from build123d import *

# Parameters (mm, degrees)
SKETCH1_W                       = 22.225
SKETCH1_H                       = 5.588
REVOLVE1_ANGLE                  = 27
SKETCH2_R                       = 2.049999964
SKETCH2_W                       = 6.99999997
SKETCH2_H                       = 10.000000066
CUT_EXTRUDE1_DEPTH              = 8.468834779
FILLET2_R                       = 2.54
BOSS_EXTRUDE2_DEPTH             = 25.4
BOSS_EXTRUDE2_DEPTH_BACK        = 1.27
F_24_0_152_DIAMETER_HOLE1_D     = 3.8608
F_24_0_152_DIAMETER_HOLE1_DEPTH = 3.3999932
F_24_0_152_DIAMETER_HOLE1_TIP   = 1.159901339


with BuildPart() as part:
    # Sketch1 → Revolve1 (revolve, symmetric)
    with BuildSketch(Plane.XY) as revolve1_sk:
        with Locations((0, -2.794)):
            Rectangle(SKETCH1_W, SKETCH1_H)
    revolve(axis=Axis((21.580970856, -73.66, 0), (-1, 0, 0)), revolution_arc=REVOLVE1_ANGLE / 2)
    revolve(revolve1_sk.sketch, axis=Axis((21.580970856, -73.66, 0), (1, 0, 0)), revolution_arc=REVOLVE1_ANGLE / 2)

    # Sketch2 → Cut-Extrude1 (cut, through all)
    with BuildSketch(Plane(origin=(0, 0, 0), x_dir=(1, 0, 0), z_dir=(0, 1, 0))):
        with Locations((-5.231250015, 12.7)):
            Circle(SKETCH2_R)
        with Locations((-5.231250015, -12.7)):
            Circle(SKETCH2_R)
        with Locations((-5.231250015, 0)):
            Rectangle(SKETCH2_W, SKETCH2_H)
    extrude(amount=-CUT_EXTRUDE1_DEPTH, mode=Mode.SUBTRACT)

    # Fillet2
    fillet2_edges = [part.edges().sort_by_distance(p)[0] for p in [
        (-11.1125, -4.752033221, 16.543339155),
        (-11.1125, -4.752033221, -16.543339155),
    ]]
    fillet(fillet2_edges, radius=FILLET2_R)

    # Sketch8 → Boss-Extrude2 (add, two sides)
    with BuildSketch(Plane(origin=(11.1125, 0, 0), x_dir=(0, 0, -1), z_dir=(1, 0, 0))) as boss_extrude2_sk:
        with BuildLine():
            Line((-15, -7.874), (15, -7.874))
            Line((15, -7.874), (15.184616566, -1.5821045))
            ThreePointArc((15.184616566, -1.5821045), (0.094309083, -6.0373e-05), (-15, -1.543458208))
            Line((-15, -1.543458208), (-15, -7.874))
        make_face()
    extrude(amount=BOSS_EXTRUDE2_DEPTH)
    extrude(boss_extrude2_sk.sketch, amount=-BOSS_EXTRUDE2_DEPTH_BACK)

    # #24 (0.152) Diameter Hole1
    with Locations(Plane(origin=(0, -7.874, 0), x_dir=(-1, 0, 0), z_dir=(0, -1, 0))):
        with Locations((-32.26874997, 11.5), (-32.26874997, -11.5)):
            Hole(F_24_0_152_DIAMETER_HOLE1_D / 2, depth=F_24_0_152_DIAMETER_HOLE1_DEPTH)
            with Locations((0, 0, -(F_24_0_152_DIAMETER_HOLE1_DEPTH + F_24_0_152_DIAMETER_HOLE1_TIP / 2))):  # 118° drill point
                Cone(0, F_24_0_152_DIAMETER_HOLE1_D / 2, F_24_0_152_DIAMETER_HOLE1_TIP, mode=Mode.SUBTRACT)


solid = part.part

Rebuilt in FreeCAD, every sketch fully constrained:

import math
import FreeCAD as App
import Part
import Sketcher

V = App.Vector
Q = App.Units.Quantity


def edges_at(feature, points):
    """Names of the edges that pass closest to the given points."""
    edges = feature.Shape.Edges
    near = lambda p: min(range(len(edges)), key=lambda i: edges[i].distToShape(Part.Vertex(*p))[0])
    return sorted({f"Edge{near(p) + 1}" for p in points})

doc = App.newDocument("Part")
body = doc.addObject("PartDesign::Body", "Body")

sketch1 = body.newObject("Sketcher::SketchObject", "Sketch")
sketch1.AttachmentSupport = (doc.getObject("XY_Plane"), [""])
sketch1.MapMode = "FlatFace"
sketch1.addGeometry([
    Part.LineSegment(V(-11, 0, 0), V(-11, -6, 0)),
    Part.LineSegment(V(-11, -6, 0), V(11, -6, 0)),
    Part.LineSegment(V(11, -6, 0), V(11, 0, 0)),
    Part.LineSegment(V(11, 0, 0), V(-11, 0, 0)),
], False)
sketch1.addGeometry(Part.LineSegment(V(11, -74, 0), V(-11, -74, 0)), True)
sketch1.addConstraint([
    Sketcher.Constraint("Coincident", 0, 2, 1, 1),
    Sketcher.Constraint("Coincident", 1, 2, 2, 1),
    Sketcher.Constraint("Coincident", 2, 2, 3, 1),
    Sketcher.Constraint("Coincident", 3, 2, 0, 1),
    Sketcher.Constraint("Vertical", 0),
    Sketcher.Constraint("Horizontal", 1),
    Sketcher.Constraint("Vertical", 2),
    Sketcher.Constraint("Horizontal", 3),
    Sketcher.Constraint("Horizontal", 4),
    Sketcher.Constraint("Symmetric", 2, 2, 3, 2, -1, 1),
    Sketcher.Constraint("Vertical", 2, 2, 4, 1),
    Sketcher.Constraint("Vertical", 3, 2, 4, 2),
    Sketcher.Constraint("DistanceY", 0, 2, 0, 1, Q("0.22 in")),
    Sketcher.Constraint("DistanceY", 4, 1, -1, 1, Q("2.9 in")),
    Sketcher.Constraint("DistanceX", 1, 1, 1, 2, Q("0.875 in")),
])
revolution = body.newObject("PartDesign::Revolution", "Revolution")
revolution.Profile = sketch1
revolution.ReferenceAxis = (sketch1, ["Axis0"])
revolution.Angle = 13.5

sketch2 = body.newObject("Sketcher::SketchObject", "Sketch001")
sketch2.AttachmentSupport = (doc.getObject("XY_Plane"), [""])
sketch2.MapMode = "FlatFace"
sketch2.addGeometry([
    Part.LineSegment(V(-11, 0, 0), V(-11, -6, 0)),
    Part.LineSegment(V(-11, -6, 0), V(11, -6, 0)),
    Part.LineSegment(V(11, -6, 0), V(11, 0, 0)),
    Part.LineSegment(V(11, 0, 0), V(-11, 0, 0)),
], False)
sketch2.addGeometry(Part.LineSegment(V(-11, -74, 0), V(11, -74, 0)), True)
sketch2.addConstraint([
    Sketcher.Constraint("Coincident", 0, 2, 1, 1),
    Sketcher.Constraint("Coincident", 1, 2, 2, 1),
    Sketcher.Constraint("Coincident", 2, 2, 3, 1),
    Sketcher.Constraint("Coincident", 3, 2, 0, 1),
    Sketcher.Constraint("Vertical", 0),
    Sketcher.Constraint("Horizontal", 1),
    Sketcher.Constraint("Vertical", 2),
    Sketcher.Constraint("Horizontal", 3),
    Sketcher.Constraint("Horizontal", 4),
    Sketcher.Constraint("Symmetric", 2, 2, 3, 2, -1, 1),
    Sketcher.Constraint("Vertical", 3, 2, 4, 1),
    Sketcher.Constraint("Vertical", 2, 2, 4, 2),
    Sketcher.Constraint("DistanceY", 0, 2, 0, 1, Q("0.22 in")),
    Sketcher.Constraint("DistanceY", 4, 1, -1, 1, Q("2.9 in")),
    Sketcher.Constraint("DistanceX", 1, 1, 1, 2, Q("0.875 in")),
])
revolution2 = body.newObject("PartDesign::Revolution", "Revolution001")
revolution2.Profile = sketch2
revolution2.ReferenceAxis = (sketch2, ["Axis0"])
revolution2.Angle = 13.5

sketch3 = body.newObject("Sketcher::SketchObject", "Sketch002")
sketch3.AttachmentSupport = (doc.getObject("XZ_Plane"), [""])
sketch3.MapMode = "FlatFace"
sketch3.addGeometry([
    Part.Circle(V(-5.2, -12.7, 0), V(0, 0, 1), 2),
    Part.Circle(V(-5.2, 12.7, 0), V(0, 0, 1), 2),
    Part.LineSegment(V(-8.7, -5, 0), V(-8.7, 5, 0)),
    Part.LineSegment(V(-8.7, 5, 0), V(-1.7, 5, 0)),
    Part.LineSegment(V(-1.7, 5, 0), V(-1.7, -5, 0)),
    Part.LineSegment(V(-1.7, -5, 0), V(-8.7, -5, 0)),
], False)
sketch3.addConstraint([
    Sketcher.Constraint("Coincident", 2, 2, 3, 1),
    Sketcher.Constraint("Coincident", 3, 2, 4, 1),
    Sketcher.Constraint("Coincident", 4, 2, 5, 1),
    Sketcher.Constraint("Coincident", 5, 2, 2, 1),
    Sketcher.Constraint("Vertical", 2),
    Sketcher.Constraint("Horizontal", 3),
    Sketcher.Constraint("Vertical", 4),
    Sketcher.Constraint("Horizontal", 5),
    Sketcher.Constraint("Equal", 0, 1),
    Sketcher.Constraint("Symmetric", 0, 3, 1, 3, -1),
    Sketcher.Constraint("DistanceY", 0, 3, 1, 3, Q("1 in")),
    Sketcher.Constraint("Diameter", 0, Q("4.1 mm")),
    Sketcher.Constraint("DistanceX", 2, 2, -1, 1, Q("0.34375 in")),
    Sketcher.Constraint("DistanceX", 3, 1, 3, 2, Q("7 mm")),
    Sketcher.Constraint("DistanceY", 2, 1, 2, 2, Q("10 mm")),
    Sketcher.Constraint("DistanceY", -1, 1, 2, 2, Q("5 mm")),
    Sketcher.Constraint("DistanceX", 2, 2, 1, 3, Q("3.5 mm")),
])
pocket1 = body.newObject("PartDesign::Pocket", "Pocket")
pocket1.Profile = sketch3
pocket1.Type = "ThroughAll"
pocket1.Reversed = True
doc.recompute()

fillet = body.newObject("PartDesign::Fillet", "Fillet")
fillet.Base = (pocket1, edges_at(pocket1, [(-11.113, -4.752, 16.543), (-11.113, -4.752, -16.543)]))
fillet.Radius = Q("0.1 in")

sketch4 = body.newObject("Sketcher::SketchObject", "Sketch003")
sketch4.AttachmentSupport = (doc.getObject("YZ_Plane"), [""])
sketch4.MapMode = "FlatFace"
sketch4.AttachmentOffset = App.Placement(V(0, 0, 0.4375 * 25.4), App.Rotation())
sketch4.addGeometry([
    Part.LineSegment(V(-8, 15, 0), V(-8, -15, 0)),
    Part.LineSegment(V(-8, -15, 0), V(-2, -15, 0)),
    Part.ArcOfCircle(Part.Circle(V(-74, 0, 0), V(0, 0, 1), 74), math.radians(-12), math.radians(12)),
    Part.LineSegment(V(-2, 15, 0), V(-8, 15, 0)),
], False)
sketch4.addConstraint([
    Sketcher.Constraint("Coincident", 0, 2, 1, 1),
    Sketcher.Constraint("Coincident", 1, 2, 2, 1),
    Sketcher.Constraint("Coincident", 2, 2, 3, 1),
    Sketcher.Constraint("Coincident", 3, 2, 0, 1),
    Sketcher.Constraint("Vertical", 0),
    Sketcher.Constraint("Horizontal", 3),
    Sketcher.Constraint("PointOnObject", 2, 3, -1),
    Sketcher.Constraint("Radius", 2, Q("2.9 in")),
    Sketcher.Constraint("DistanceX", 2, 3, -1, 1, Q("2.9 in")),
    Sketcher.Constraint("DistanceX", 0, 2, -1, 1, Q("0.31 in")),
    Sketcher.Constraint("DistanceY", 0, 2, 0, 1, Q("30 mm")),
    Sketcher.Constraint("DistanceX", 3, 2, 3, 1, Q("6.330542 mm")),
    Sketcher.Constraint("Distance", 1, Q("6.294603 mm")),
])
pad1 = body.newObject("PartDesign::Pad", "Pad")
pad1.Profile = sketch4
pad1.Type = "TwoLengths"
pad1.Length = Q("1 in")
pad1.Length2 = Q("0.05 in")

sketch5 = body.newObject("Sketcher::SketchObject", "Sketch004")
sketch5.AttachmentSupport = (doc.getObject("XZ_Plane"), [""])
sketch5.MapMode = "FlatFace"
sketch5.AttachmentOffset = App.Placement(V(0, 0, 0.31 * 25.4), App.Rotation())
sketch5.addGeometry([
    Part.Circle(V(32.3, -11.5, 0), V(0, 0, 1), 1.9),
    Part.Circle(V(32.3, 11.5, 0), V(0, 0, 1), 1.9),
], False)
sketch5.addConstraint([
    Sketcher.Constraint("Equal", 0, 1),
    Sketcher.Constraint("Symmetric", 0, 3, 1, 3, -1),
    Sketcher.Constraint("Diameter", 0, Q("0.152 in")),
    Sketcher.Constraint("DistanceY", 0, 3, -1, 1, Q("11.5 mm")),
    Sketcher.Constraint("DistanceX", -1, 1, 0, 3, Q("32.26875 mm")),
])
doc.recompute()
hole = body.newObject("PartDesign::Hole", "Hole")
hole.Profile = sketch5
hole.ThreadType = "None"
hole.Diameter = Q("0.152 in")
hole.DepthType = "Dimension"
hole.Depth = 3.399993
hole.DrillPoint = "Angled"
hole.DrillPointAngle = 118

doc.recompute()
